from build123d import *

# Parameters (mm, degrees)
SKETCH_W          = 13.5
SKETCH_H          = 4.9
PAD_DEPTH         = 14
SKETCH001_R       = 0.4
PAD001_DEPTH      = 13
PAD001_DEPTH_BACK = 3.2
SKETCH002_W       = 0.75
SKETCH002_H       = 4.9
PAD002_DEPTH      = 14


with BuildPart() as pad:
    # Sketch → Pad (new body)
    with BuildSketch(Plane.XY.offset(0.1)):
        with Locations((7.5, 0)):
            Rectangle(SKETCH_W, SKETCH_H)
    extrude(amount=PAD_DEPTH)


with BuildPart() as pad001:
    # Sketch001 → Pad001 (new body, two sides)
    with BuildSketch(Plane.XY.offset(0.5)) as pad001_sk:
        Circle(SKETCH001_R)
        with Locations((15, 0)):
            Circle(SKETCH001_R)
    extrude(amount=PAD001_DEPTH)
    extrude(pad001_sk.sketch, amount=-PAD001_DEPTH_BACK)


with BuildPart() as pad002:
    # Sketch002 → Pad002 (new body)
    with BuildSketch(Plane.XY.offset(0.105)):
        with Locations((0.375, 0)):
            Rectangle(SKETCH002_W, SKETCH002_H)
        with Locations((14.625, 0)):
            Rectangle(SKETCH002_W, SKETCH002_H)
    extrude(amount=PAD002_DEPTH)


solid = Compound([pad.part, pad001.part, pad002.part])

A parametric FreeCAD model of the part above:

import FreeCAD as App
import Part
import Sketcher
from FreeCAD import Vector
Q = App.Units.Quantity

doc = App.newDocument("Part")
params = doc.addObject("Spreadsheet::Sheet", "Params")
for row, (alias, value) in enumerate([
    ("sketch1_width", "13.5 mm"),
    ("sketch1_height", "4.9 mm"),
    ("pad1_length", "14 mm"),
    ("sketch2_diameter", "0.8 mm"),
    ("pad2_length", "13 mm"),
    ("pad2_length2", "3.2 mm"),
    ("sketch3_height", "4.9 mm"),
    ("sketch3_width", "0.75 mm"),
    ("pad3_length", "14 mm"),
], start=1):
    params.set(f"A{row}", alias)
    params.set(f"B{row}", "=" + value)
    params.setAlias(f"B{row}", alias)

body = doc.addObject("PartDesign::Body", "Body")

# Sketch on XY plane
sketch1 = body.newObject("Sketcher::SketchObject", "Sketch")
sketch1.AttachmentSupport = (doc.getObject("XY_Plane"), [""])
sketch1.MapMode = "FlatFace"
sketch1.AttachmentOffset = App.Placement(Vector(0, 0, 0.1), App.Rotation())
sketch1.addGeometry([
    Part.LineSegment(Vector(0.75, 2.45, 0), Vector(0.75, -2.45, 0)),
    Part.LineSegment(Vector(0.75, -2.45, 0), Vector(14.25, -2.45, 0)),
    Part.LineSegment(Vector(14.25, -2.45, 0), Vector(14.25, 2.45, 0)),
    Part.LineSegment(Vector(14.25, 2.45, 0), Vector(0.75, 2.45, 0)),
], False)
sketch1.addConstraint([
    Sketcher.Constraint("Coincident", 0, 2, 1, 1),
    Sketcher.Constraint("Coincident", 1, 2, 2, 1),
    Sketcher.Constraint("Coincident", 2, 2, 3, 1),
    Sketcher.Constraint("Coincident", 3, 2, 0, 1),
    Sketcher.Constraint("Vertical", 0),
    Sketcher.Constraint("Horizontal", 1),
    Sketcher.Constraint("Vertical", 2),
    Sketcher.Constraint("Horizontal", 3),
    Sketcher.Constraint("DistanceX", 1, 1, 1, 2, Q("13.5 mm")),
    Sketcher.Constraint("DistanceY", 0, 2, 0, 1, Q("4.9 mm")),
    Sketcher.Constraint("DistanceX", -1, 1, 0, 2, Q("0.75 mm")),
    Sketcher.Constraint("DistanceY", 0, 2, -1, 1, Q("2.45 mm")),
])
sketch1.setExpression("Constraints[8]", "Params.sketch1_width")
sketch1.setExpression("Constraints[9]", "Params.sketch1_height")
pad1 = body.newObject("PartDesign::Pad", "Pad")
pad1.Profile = sketch1
pad1.setExpression("Length", "Params.pad1_length")
body2 = doc.addObject("PartDesign::Body", "Body001")
body2.AllowCompound = True

# Sketch on XY plane
sketch2 = body2.newObject("Sketcher::SketchObject", "Sketch001")
sketch2.AttachmentSupport = (doc.getObject("XY_Plane001"), [""])
sketch2.MapMode = "FlatFace"
sketch2.AttachmentOffset = App.Placement(Vector(0, 0, 0.5), App.Rotation())
sketch2.addGeometry([
    Part.Circle(Vector(0, 0, 0), Vector(0, 0, 1), 0.4),
    Part.Circle(Vector(15, 0, 0), Vector(0, 0, 1), 0.4),
], False)
sketch2.addConstraint([
    Sketcher.Constraint("Coincident", 0, 3, -1, 1),
    Sketcher.Constraint("Equal", 0, 1),
    Sketcher.Constraint("PointOnObject", 1, 3, -1),
    Sketcher.Constraint("Diameter", 0, Q("0.8 mm")),
    Sketcher.Constraint("DistanceX", -1, 1, 1, 3, Q("15 mm")),
])
sketch2.setExpression("Constraints[3]", "Params.sketch2_diameter")
pad2 = body2.newObject("PartDesign::Pad", "Pad001")
pad2.Profile = sketch2
pad2.Type = "TwoLengths"
pad2.setExpression("Length", "Params.pad2_length")
pad2.setExpression("Length2", "Params.pad2_length2")
body3 = doc.addObject("PartDesign::Body", "Body002")
body3.AllowCompound = True

# Sketch on XY plane
sketch3 = body3.newObject("Sketcher::SketchObject", "Sketch002")
sketch3.AttachmentSupport = (doc.getObject("XY_Plane002"), [""])
sketch3.MapMode = "FlatFace"
sketch3.AttachmentOffset = App.Placement(Vector(0, 0, 0.105), App.Rotation())
sketch3.addGeometry([
    Part.LineSegment(Vector(0, 2.45, 0), Vector(0, -2.45, 0)),  # 0
    Part.LineSegment(Vector(0, -2.45, 0), Vector(0.75, -2.45, 0)),  # 1
    Part.LineSegment(Vector(0.75, -2.45, 0), Vector(0.75, 2.45, 0)),  # 2
    Part.LineSegment(Vector(0.75, 2.45, 0), Vector(0, 2.45, 0)),  # 3
    Part.LineSegment(Vector(14.25, 2.45, 0), Vector(14.25, -2.45, 0)),  # 4
    Part.LineSegment(Vector(14.25, -2.45, 0), Vector(15, -2.45, 0)),  # 5
    Part.LineSegment(Vector(15, -2.45, 0), Vector(15, 2.45, 0)),  # 6
    Part.LineSegment(Vector(15, 2.45, 0), Vector(14.25, 2.45, 0)),  # 7
], False)
sketch3.addConstraint([
    Sketcher.Constraint("Coincident", 0, 2, 1, 1),
    Sketcher.Constraint("Coincident", 1, 2, 2, 1),
    Sketcher.Constraint("Coincident", 2, 2, 3, 1),
    Sketcher.Constraint("Coincident", 3, 2, 0, 1),
    Sketcher.Constraint("Coincident", 4, 2, 5, 1),
    Sketcher.Constraint("Coincident", 5, 2, 6, 1),
    Sketcher.Constraint("Coincident", 6, 2, 7, 1),
    Sketcher.Constraint("Coincident", 7, 2, 4, 1),
    Sketcher.Constraint("Vertical", 0),
    Sketcher.Constraint("Horizontal", 1),
    Sketcher.Constraint("Vertical", 2),
    Sketcher.Constraint("Horizontal", 3),
    Sketcher.Constraint("Vertical", 4),
    Sketcher.Constraint("Horizontal", 5),
    Sketcher.Constraint("Vertical", 6),
    Sketcher.Constraint("Horizontal", 7),
    Sketcher.Constraint("Symmetric", 0, 2, 3, 2, -1, 1),
    Sketcher.Constraint("Horizontal", 1, 2, 4, 2),
    Sketcher.Constraint("Horizontal", 3, 2, 6, 2),
    Sketcher.Constraint("Equal", 3, 5),
    Sketcher.Constraint("DistanceY", 0, 2, 0, 1, Q("4.9 mm")),
    Sketcher.Constraint("DistanceX", -1, 1, 5, 2, Q("15 mm")),
    Sketcher.Constraint("DistanceX", 1, 1, 1, 2, Q("0.75 mm")),
])
sketch3.setExpression("Constraints[20]", "Params.sketch3_height")
sketch3.setExpression("Constraints[22]", "Params.sketch3_width")
pad3 = body3.newObject("PartDesign::Pad", "Pad002")
pad3.Profile = sketch3
pad3.setExpression("Length", "Params.pad3_length")

doc.recompute()
